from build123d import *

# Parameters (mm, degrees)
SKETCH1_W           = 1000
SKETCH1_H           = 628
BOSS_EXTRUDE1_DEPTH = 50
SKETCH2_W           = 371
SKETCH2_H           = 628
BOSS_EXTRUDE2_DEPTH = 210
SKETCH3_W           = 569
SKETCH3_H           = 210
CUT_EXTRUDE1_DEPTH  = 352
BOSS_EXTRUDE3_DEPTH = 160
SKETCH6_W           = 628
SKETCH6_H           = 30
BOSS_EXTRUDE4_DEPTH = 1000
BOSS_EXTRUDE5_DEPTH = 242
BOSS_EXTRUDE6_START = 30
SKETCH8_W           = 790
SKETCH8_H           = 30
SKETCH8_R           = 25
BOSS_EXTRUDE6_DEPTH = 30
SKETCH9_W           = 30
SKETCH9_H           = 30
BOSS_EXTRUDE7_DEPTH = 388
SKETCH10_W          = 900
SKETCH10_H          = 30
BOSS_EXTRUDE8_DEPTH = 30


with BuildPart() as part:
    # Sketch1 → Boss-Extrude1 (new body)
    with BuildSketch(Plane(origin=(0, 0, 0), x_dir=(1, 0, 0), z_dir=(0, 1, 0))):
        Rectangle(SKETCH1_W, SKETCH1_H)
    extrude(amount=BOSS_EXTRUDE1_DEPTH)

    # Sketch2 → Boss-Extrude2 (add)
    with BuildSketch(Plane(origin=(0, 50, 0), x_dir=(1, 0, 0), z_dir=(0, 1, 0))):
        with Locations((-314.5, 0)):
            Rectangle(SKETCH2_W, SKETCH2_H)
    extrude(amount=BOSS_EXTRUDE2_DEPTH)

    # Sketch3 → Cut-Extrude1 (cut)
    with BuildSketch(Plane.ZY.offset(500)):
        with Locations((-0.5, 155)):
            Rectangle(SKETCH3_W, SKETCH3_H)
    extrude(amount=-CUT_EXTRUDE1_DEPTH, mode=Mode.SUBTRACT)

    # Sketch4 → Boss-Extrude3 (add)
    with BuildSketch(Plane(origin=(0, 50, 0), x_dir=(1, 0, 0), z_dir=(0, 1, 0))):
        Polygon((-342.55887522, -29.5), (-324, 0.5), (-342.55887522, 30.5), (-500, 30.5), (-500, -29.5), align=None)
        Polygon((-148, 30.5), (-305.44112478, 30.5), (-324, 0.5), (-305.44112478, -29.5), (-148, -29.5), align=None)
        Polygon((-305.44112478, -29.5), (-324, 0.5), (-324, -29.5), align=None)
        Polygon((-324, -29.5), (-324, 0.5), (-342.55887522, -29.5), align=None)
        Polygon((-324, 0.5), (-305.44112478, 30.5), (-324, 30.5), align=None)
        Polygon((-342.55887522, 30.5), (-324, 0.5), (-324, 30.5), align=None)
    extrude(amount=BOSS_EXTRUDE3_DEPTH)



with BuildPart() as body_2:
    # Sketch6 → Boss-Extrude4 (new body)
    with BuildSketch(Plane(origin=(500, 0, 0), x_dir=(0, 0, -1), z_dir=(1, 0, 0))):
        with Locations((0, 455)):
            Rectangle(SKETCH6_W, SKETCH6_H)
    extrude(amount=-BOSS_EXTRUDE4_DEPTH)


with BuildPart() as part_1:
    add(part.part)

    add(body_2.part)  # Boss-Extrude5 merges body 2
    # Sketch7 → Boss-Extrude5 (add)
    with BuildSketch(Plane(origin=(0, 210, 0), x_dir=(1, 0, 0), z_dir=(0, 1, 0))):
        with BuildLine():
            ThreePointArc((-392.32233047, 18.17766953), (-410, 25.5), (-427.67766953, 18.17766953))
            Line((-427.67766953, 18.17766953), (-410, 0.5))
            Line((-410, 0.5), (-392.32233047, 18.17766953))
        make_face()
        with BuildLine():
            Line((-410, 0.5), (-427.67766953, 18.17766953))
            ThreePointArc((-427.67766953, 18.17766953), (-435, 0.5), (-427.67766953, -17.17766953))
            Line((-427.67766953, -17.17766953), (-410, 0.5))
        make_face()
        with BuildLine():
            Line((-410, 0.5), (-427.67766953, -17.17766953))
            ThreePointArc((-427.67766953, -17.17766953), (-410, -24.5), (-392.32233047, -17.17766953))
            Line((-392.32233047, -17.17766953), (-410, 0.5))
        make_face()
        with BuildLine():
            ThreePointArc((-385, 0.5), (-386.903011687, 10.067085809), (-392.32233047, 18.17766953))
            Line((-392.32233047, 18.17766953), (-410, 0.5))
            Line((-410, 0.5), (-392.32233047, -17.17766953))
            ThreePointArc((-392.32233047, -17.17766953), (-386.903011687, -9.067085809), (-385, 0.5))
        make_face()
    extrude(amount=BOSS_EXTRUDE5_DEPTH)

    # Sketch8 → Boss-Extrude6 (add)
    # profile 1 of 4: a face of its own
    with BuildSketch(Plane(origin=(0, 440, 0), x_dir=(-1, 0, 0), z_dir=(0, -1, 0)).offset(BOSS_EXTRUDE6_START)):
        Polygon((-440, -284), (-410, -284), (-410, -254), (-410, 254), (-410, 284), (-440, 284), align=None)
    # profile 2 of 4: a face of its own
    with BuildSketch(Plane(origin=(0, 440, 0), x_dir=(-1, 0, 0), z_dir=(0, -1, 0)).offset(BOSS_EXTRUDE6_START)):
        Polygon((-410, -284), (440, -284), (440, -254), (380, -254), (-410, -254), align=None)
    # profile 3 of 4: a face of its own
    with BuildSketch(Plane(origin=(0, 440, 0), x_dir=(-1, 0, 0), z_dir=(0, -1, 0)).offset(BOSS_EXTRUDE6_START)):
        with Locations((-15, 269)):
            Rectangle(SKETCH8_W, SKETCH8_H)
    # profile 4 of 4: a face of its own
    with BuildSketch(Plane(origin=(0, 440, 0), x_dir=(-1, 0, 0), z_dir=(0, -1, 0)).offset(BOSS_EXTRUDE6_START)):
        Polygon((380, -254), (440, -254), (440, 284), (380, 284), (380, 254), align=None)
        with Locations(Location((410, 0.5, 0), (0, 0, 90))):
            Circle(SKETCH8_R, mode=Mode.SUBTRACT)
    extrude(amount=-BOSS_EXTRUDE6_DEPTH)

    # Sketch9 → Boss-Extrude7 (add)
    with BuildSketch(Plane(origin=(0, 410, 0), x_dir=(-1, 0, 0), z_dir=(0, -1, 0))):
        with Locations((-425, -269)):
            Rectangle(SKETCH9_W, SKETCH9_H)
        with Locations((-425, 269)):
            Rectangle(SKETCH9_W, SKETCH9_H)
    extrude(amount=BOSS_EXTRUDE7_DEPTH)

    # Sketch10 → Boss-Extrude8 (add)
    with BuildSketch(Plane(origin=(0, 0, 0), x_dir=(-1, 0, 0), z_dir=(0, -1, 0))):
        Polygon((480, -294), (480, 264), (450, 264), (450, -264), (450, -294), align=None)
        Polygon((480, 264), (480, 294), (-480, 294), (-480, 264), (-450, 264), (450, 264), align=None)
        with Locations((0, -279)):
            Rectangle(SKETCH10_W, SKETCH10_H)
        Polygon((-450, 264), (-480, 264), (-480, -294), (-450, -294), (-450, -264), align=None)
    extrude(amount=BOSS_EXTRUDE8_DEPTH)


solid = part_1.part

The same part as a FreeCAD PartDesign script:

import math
import FreeCAD as App
import Part
import Sketcher
from FreeCAD import Vector
Q = App.Units.Quantity

doc = App.newDocument("Part")
body = doc.addObject("PartDesign::Body", "Body")

sketch1 = body.newObject("Sketcher::SketchObject", "Sketch")
sketch1.AttachmentSupport = (doc.getObject("XZ_Plane"), [""])
sketch1.MapMode = "FlatFace"
sketch1.addGeometry(Part.LineSegment(Vector(-500, -314, 0), Vector(-500, 314, 0)), False)
sketch1.addGeometry(Part.LineSegment(Vector(-500, 314, 0), Vector(500, 314, 0)), False)
sketch1.addGeometry(Part.LineSegment(Vector(500, 314, 0), Vector(500, -314, 0)), False)
sketch1.addGeometry(Part.LineSegment(Vector(500, -314, 0), Vector(-500, -314, 0)), False)
sketch1.addConstraint(Sketcher.Constraint("Coincident", 0, 2, 1, 1))
sketch1.addConstraint(Sketcher.Constraint("Coincident", 1, 2, 2, 1))
sketch1.addConstraint(Sketcher.Constraint("Coincident", 2, 2, 3, 1))
sketch1.addConstraint(Sketcher.Constraint("Coincident", 3, 2, 0, 1))
sketch1.addConstraint(Sketcher.Constraint("Vertical", 0))
sketch1.addConstraint(Sketcher.Constraint("Horizontal", 1))
sketch1.addConstraint(Sketcher.Constraint("Vertical", 2))
sketch1.addConstraint(Sketcher.Constraint("Horizontal", 3))
sketch1.addConstraint(Sketcher.Constraint("Symmetric", 0, 2, 2, 2, -1, 1))
sketch1.addConstraint(Sketcher.Constraint("DistanceX", 1, 1, 1, 2, Q("1000 mm")))
sketch1.addConstraint(Sketcher.Constraint("DistanceY", 0, 1, 0, 2, Q("628 mm")))
pad1 = body.newObject("PartDesign::Pad", "Pad")
pad1.Profile = sketch1
pad1.Length = 50
pad1.Reversed = True

sketch2 = body.newObject("Sketcher::SketchObject", "Sketch001")
sketch2.AttachmentSupport = (doc.getObject("XZ_Plane"), [""])
sketch2.MapMode = "FlatFace"
sketch2.AttachmentOffset = App.Placement(Vector(0, 0, -50), App.Rotation())
sketch2.addGeometry(Part.LineSegment(Vector(-500, -314, 0), Vector(-500, 314, 0)), False)
sketch2.addGeometry(Part.LineSegment(Vector(-500, 314, 0), Vector(-129, 314, 0)), False)
sketch2.addGeometry(Part.LineSegment(Vector(-129, 314, 0), Vector(-129, -314, 0)), False)
sketch2.addGeometry(Part.LineSegment(Vector(-129, -314, 0), Vector(-500, -314, 0)), False)
sketch2.addConstraint(Sketcher.Constraint("Coincident", 0, 2, 1, 1))
sketch2.addConstraint(Sketcher.Constraint("Coincident", 1, 2, 2, 1))
sketch2.addConstraint(Sketcher.Constraint("Coincident", 2, 2, 3, 1))
sketch2.addConstraint(Sketcher.Constraint("Coincident", 3, 2, 0, 1))
sketch2.addConstraint(Sketcher.Constraint("Vertical", 0))
sketch2.addConstraint(Sketcher.Constraint("Horizontal", 1))
sketch2.addConstraint(Sketcher.Constraint("Vertical", 2))
sketch2.addConstraint(Sketcher.Constraint("Horizontal", 3))
sketch2.addConstraint(Sketcher.Constraint("DistanceX", 1, 1, 1, 2, Q("371 mm")))
sketch2.addConstraint(Sketcher.Constraint("DistanceY", 0, 1, 0, 2, Q("628 mm")))
sketch2.addConstraint(Sketcher.Constraint("DistanceX", 0, 2, -1, 1, Q("500 mm")))
sketch2.addConstraint(Sketcher.Constraint("DistanceY", -1, 1, 0, 2, Q("314 mm")))
pad2 = body.newObject("PartDesign::Pad", "Pad001")
pad2.Profile = sketch2
pad2.Length = 210
pad2.Reversed = True

sketch3 = body.newObject("Sketcher::SketchObject", "Sketch002")
sketch3.AttachmentSupport = (doc.getObject("YZ_Plane"), [""])
sketch3.MapMode = "FlatFace"
sketch3.AttachmentOffset = App.Placement(Vector(0, 0, -500), App.Rotation())
sketch3.addGeometry(Part.LineSegment(Vector(260, -285, 0), Vector(50, -285, 0)), False)
sketch3.addGeometry(Part.LineSegment(Vector(50, -285, 0), Vector(50, 284, 0)), False)
sketch3.addGeometry(Part.LineSegment(Vector(50, 284, 0), Vector(260, 284, 0)), False)
sketch3.addGeometry(Part.LineSegment(Vector(260, 284, 0), Vector(260, -285, 0)), False)
sketch3.addConstraint(Sketcher.Constraint("Coincident", 0, 2, 1, 1))
sketch3.addConstraint(Sketcher.Constraint("Coincident", 1, 2, 2, 1))
sketch3.addConstraint(Sketcher.Constraint("Coincident", 2, 2, 3, 1))
sketch3.addConstraint(Sketcher.Constraint("Coincident", 3, 2, 0, 1))
sketch3.addConstraint(Sketcher.Constraint("Horizontal", 0))
sketch3.addConstraint(Sketcher.Constraint("Vertical", 1))
sketch3.addConstraint(Sketcher.Constraint("Horizontal", 2))
sketch3.addConstraint(Sketcher.Constraint("Vertical", 3))
sketch3.addConstraint(Sketcher.Constraint("DistanceX", 0, 2, 0, 1, Q("210 mm")))
sketch3.addConstraint(Sketcher.Constraint("DistanceY", 1, 1, 1, 2, Q("569 mm")))
sketch3.addConstraint(Sketcher.Constraint("DistanceX", -1, 1, 0, 2, Q("50 mm")))
sketch3.addConstraint(Sketcher.Constraint("DistanceY", 0, 2, -1, 1, Q("285 mm")))
pocket1 = body.newObject("PartDesign::Pocket", "Pocket")
pocket1.Profile = sketch3
pocket1.Length = 352
pocket1.Reversed = True

sketch4 = body.newObject("Sketcher::SketchObject", "Sketch003")
sketch4.AttachmentSupport = (doc.getObject("XZ_Plane"), [""])
sketch4.MapMode = "FlatFace"
sketch4.AttachmentOffset = App.Placement(Vector(0, 0, -50), App.Rotation())
sketch4.addGeometry(Part.LineSegment(Vector(-500, -30, 0), Vector(-500, 30, 0)), False)
sketch4.addGeometry(Part.LineSegment(Vector(-500, 30, 0), Vector(-148, 30, 0)), False)
sketch4.addGeometry(Part.LineSegment(Vector(-148, 30, 0), Vector(-148, -30, 0)), False)
sketch4.addGeometry(Part.LineSegment(Vector(-148, -30, 0), Vector(-500, -30, 0)), False)
sketch4.addConstraint(Sketcher.Constraint("Coincident", 0, 2, 1, 1))
sketch4.addConstraint(Sketcher.Constraint("Coincident", 1, 2, 2, 1))
sketch4.addConstraint(Sketcher.Constraint("Coincident", 2, 2, 3, 1))
sketch4.addConstraint(Sketcher.Constraint("Coincident", 3, 2, 0, 1))
sketch4.addConstraint(Sketcher.Constraint("Vertical", 0))
sketch4.addConstraint(Sketcher.Constraint("Horizontal", 1))
sketch4.addConstraint(Sketcher.Constraint("Vertical", 2))
sketch4.addConstraint(Sketcher.Constraint("Horizontal", 3))
sketch4.addConstraint(Sketcher.Constraint("DistanceX", 1, 1, 1, 2, Q("352 mm")))
sketch4.addConstraint(Sketcher.Constraint("DistanceY", 0, 1, 0, 2, Q("60 mm")))
sketch4.addConstraint(Sketcher.Constraint("DistanceX", 0, 2, -1, 1, Q("500 mm")))
sketch4.addConstraint(Sketcher.Constraint("DistanceY", -1, 1, 0, 2, Q("29.5 mm")))
pad3 = body.newObject("PartDesign::Pad", "Pad002")
pad3.Profile = sketch4
pad3.Length = 160
pad3.Reversed = True
body2 = doc.addObject("PartDesign::Body", "Body001")

sketch5 = body2.newObject("Sketcher::SketchObject", "Sketch004")
sketch5.AttachmentSupport = (doc.getObject("YZ_Plane001"), [""])
sketch5.MapMode = "FlatFace"
sketch5.AttachmentOffset = App.Placement(Vector(0, 0, 500), App.Rotation())
sketch5.addGeometry(Part.LineSegment(Vector(470, 314, 0), Vector(440, 314, 0)), False)
sketch5.addGeometry(Part.LineSegment(Vector(440, 314, 0), Vector(440, -314, 0)), False)
sketch5.addGeometry(Part.LineSegment(Vector(440, -314, 0), Vector(470, -314, 0)), False)
sketch5.addGeometry(Part.LineSegment(Vector(470, -314, 0), Vector(470, 314, 0)), False)
sketch5.addConstraint(Sketcher.Constraint("Coincident", 0, 2, 1, 1))
sketch5.addConstraint(Sketcher.Constraint("Coincident", 1, 2, 2, 1))
sketch5.addConstraint(Sketcher.Constraint("Coincident", 2, 2, 3, 1))
sketch5.addConstraint(Sketcher.Constraint("Coincident", 3, 2, 0, 1))
sketch5.addConstraint(Sketcher.Constraint("Horizontal", 0))
sketch5.addConstraint(Sketcher.Constraint("Vertical", 1))
sketch5.addConstraint(Sketcher.Constraint("Horizontal", 2))
sketch5.addConstraint(Sketcher.Constraint("Vertical", 3))
sketch5.addConstraint(Sketcher.Constraint("DistanceX", 0, 2, 0, 1, Q("30 mm")))
sketch5.addConstraint(Sketcher.Constraint("DistanceY", 1, 2, 1, 1, Q("628 mm")))
sketch5.addConstraint(Sketcher.Constraint("DistanceX", -1, 1, 0, 2, Q("440 mm")))
sketch5.addConstraint(Sketcher.Constraint("DistanceY", -1, 1, 0, 2, Q("314 mm")))
pad4 = body2.newObject("PartDesign::Pad", "Pad003")
pad4.Profile = sketch5
pad4.Length = 1000
pad4.Reversed = True
body.AllowCompound = True
doc.recompute()

boolean = body.newObject("PartDesign::Boolean", "Boolean")
boolean.Type = "Fuse"
boolean.addObjects([body2])

sketch6 = body.newObject("Sketcher::SketchObject", "Sketch005")
sketch6.AttachmentSupport = (doc.getObject("XZ_Plane"), [""])
sketch6.MapMode = "FlatFace"
sketch6.AttachmentOffset = App.Placement(Vector(0, 0, -210), App.Rotation())
sketch6.addGeometry(Part.ArcOfCircle(Part.Circle(Vector(-410, 0, 0), Vector(0, 0, 1), 25), math.radians(-135), math.radians(-45)), False)
sketch6.addGeometry(Part.ArcOfCircle(Part.Circle(Vector(-410, 0, 0), Vector(0, 0, 1), 25), math.radians(135), math.radians(225)), False)
sketch6.addGeometry(Part.ArcOfCircle(Part.Circle(Vector(-410, -1, 0), Vector(0, 0, 1), 25), math.radians(45), math.radians(135)), False)
sketch6.addGeometry(Part.ArcOfCircle(Part.Circle(Vector(-410, 0, 0), Vector(0, 0, 1), 25), math.radians(0), math.radians(45)), False)
sketch6.addGeometry(Part.ArcOfCircle(Part.Circle(Vector(-410, 0, 0), Vector(0, 0, 1), 25), math.radians(-45), math.radians(0)), False)
sketch6.addConstraint(Sketcher.Constraint("Tangent", 0, 1, 1, 2))
sketch6.addConstraint(Sketcher.Constraint("Tangent", 1, 1, 2, 2))
sketch6.addConstraint(Sketcher.Constraint("Tangent", 2, 1, 3, 2))
sketch6.addConstraint(Sketcher.Constraint("Tangent", 3, 1, 4, 2))
sketch6.addConstraint(Sketcher.Constraint("Tangent", 4, 1, 0, 2))
sketch6.addConstraint(Sketcher.Constraint("Coincident", 2, 3, 0, 3))
sketch6.addConstraint(Sketcher.Constraint("Horizontal", 1, 1, 2, 1))
sketch6.addConstraint(Sketcher.Constraint("Horizontal", 4, 3, 3, 1))
sketch6.addConstraint(Sketcher.Constraint("Horizontal", 0, 1, 4, 1))
sketch6.addConstraint(Sketcher.Constraint("Vertical", 0, 1, 1, 1))
sketch6.addConstraint(Sketcher.Constraint("Radius", 0, Q("25 mm")))
sketch6.addConstraint(Sketcher.Constraint("DistanceX", 0, 3, -1, 1, Q("410 mm")))
sketch6.addConstraint(Sketcher.Constraint("DistanceY", 0, 3, -1, 1, Q("0.5 mm")))
sketch6.addConstraint(Sketcher.Constraint("DistanceX", 0, 1, -1, 1, Q("427.67767 mm")))
pad5 = body.newObject("PartDesign::Pad", "Pad004")
pad5.Profile = sketch6
pad5.Length = 242
pad5.Reversed = True

sketch7 = body.newObject("Sketcher::SketchObject", "Sketch006")
sketch7.AttachmentSupport = (doc.getObject("XZ_Plane"), [""])
sketch7.MapMode = "FlatFace"
sketch7.AttachmentOffset = App.Placement(Vector(0, 0, -410), App.Rotation())
sketch7.addGeometry(Part.LineSegment(Vector(440, 284, 0), Vector(-440, 284, 0)), False)
sketch7.addGeometry(Part.LineSegment(Vector(-440, 284, 0), Vector(-440, -284, 0)), False)
sketch7.addGeometry(Part.LineSegment(Vector(-440, -284, 0), Vector(440, -284, 0)), False)
sketch7.addGeometry(Part.LineSegment(Vector(440, -284, 0), Vector(440, 284, 0)), False)
sketch7.addGeometry(Part.LineSegment(Vector(410, 254, 0), Vector(410, -254, 0)), False)
sketch7.addGeometry(Part.LineSegment(Vector(410, -254, 0), Vector(-380, -254, 0)), False)
sketch7.addGeometry(Part.LineSegment(Vector(-380, -254, 0), Vector(-380, 254, 0)), False)
sketch7.addGeometry(Part.LineSegment(Vector(-380, 254, 0), Vector(410, 254, 0)), False)
sketch7.addGeometry(Part.Circle(Vector(-410, 0, 0), Vector(0, 0, 1), 25), False)
sketch7.addConstraint(Sketcher.Constraint("Coincident", 0, 2, 1, 1))
sketch7.addConstraint(Sketcher.Constraint("Coincident", 1, 2, 2, 1))
sketch7.addConstraint(Sketcher.Constraint("Coincident", 2, 2, 3, 1))
sketch7.addConstraint(Sketcher.Constraint("Coincident", 3, 2, 0, 1))
sketch7.addConstraint(Sketcher.Constraint("Coincident", 4, 2, 5, 1))
sketch7.addConstraint(Sketcher.Constraint("Coincident", 5, 2, 6, 1))
sketch7.addConstraint(Sketcher.Constraint("Coincident", 6, 2, 7, 1))
sketch7.addConstraint(Sketcher.Constraint("Coincident", 7, 2, 4, 1))
sketch7.addConstraint(Sketcher.Constraint("Horizontal", 0))
sketch7.addConstraint(Sketcher.Constraint("Vertical", 1))
sketch7.addConstraint(Sketcher.Constraint("Horizontal", 2))
sketch7.addConstraint(Sketcher.Constraint("Vertical", 3))
sketch7.addConstraint(Sketcher.Constraint("Vertical", 4))
sketch7.addConstraint(Sketcher.Constraint("Horizontal", 5))
sketch7.addConstraint(Sketcher.Constraint("Vertical", 6))
sketch7.addConstraint(Sketcher.Constraint("Horizontal", 7))
sketch7.addConstraint(Sketcher.Constraint("Symmetric", 0, 2, 2, 2, -1, 1))
sketch7.addConstraint(Sketcher.Constraint("Diameter", 8, Q("50 mm")))
sketch7.addConstraint(Sketcher.Constraint("DistanceX", 0, 2, 0, 1, Q("880 mm")))
sketch7.addConstraint(Sketcher.Constraint("DistanceX", 5, 2, 5, 1, Q("790 mm")))
sketch7.addConstraint(Sketcher.Constraint("DistanceY", 1, 2, 1, 1, Q("568 mm")))
sketch7.addConstraint(Sketcher.Constraint("DistanceY", 4, 2, 4, 1, Q("508 mm")))
sketch7.addConstraint(Sketcher.Constraint("DistanceX", 8, 3, -1, 1, Q("410 mm")))
sketch7.addConstraint(Sketcher.Constraint("DistanceX", -1, 1, 4, 2, Q("410 mm")))
sketch7.addConstraint(Sketcher.Constraint("DistanceY", 4, 2, -1, 1, Q("254 mm")))
sketch7.addConstraint(Sketcher.Constraint("DistanceY", 8, 3, -1, 1, Q("0.5 mm")))
pad6 = body.newObject("PartDesign::Pad", "Pad005")
pad6.Profile = sketch7
pad6.Length = 30
pad6.Reversed = True

sketch8 = body.newObject("Sketcher::SketchObject", "Sketch007")
sketch8.AttachmentSupport = (doc.getObject("XZ_Plane"), [""])
sketch8.MapMode = "FlatFace"
sketch8.AttachmentOffset = App.Placement(Vector(0, 0, -410), App.Rotation())
sketch8.addGeometry(Part.LineSegment(Vector(440, 254, 0), Vector(440, 284, 0)), False)
sketch8.addGeometry(Part.LineSegment(Vector(440, 284, 0), Vector(410, 284, 0)), False)
sketch8.addGeometry(Part.LineSegment(Vector(410, 284, 0), Vector(410, 254, 0)), False)
sketch8.addGeometry(Part.LineSegment(Vector(410, 254, 0), Vector(440, 254, 0)), False)
sketch8.addGeometry(Part.LineSegment(Vector(440, -284, 0), Vector(440, -254, 0)), False)
sketch8.addGeometry(Part.LineSegment(Vector(440, -254, 0), Vector(410, -254, 0)), False)
sketch8.addGeometry(Part.LineSegment(Vector(410, -254, 0), Vector(410, -284, 0)), False)
sketch8.addGeometry(Part.LineSegment(Vector(410, -284, 0), Vector(440, -284, 0)), False)
sketch8.addConstraint(Sketcher.Constraint("Coincident", 0, 2, 1, 1))
sketch8.addConstraint(Sketcher.Constraint("Coincident", 1, 2, 2, 1))
sketch8.addConstraint(Sketcher.Constraint("Coincident", 2, 2, 3, 1))
sketch8.addConstraint(Sketcher.Constraint("Coincident", 3, 2, 0, 1))
sketch8.addConstraint(Sketcher.Constraint("Coincident", 4, 2, 5, 1))
sketch8.addConstraint(Sketcher.Constraint("Coincident", 5, 2, 6, 1))
sketch8.addConstraint(Sketcher.Constraint("Coincident", 6, 2, 7, 1))
sketch8.addConstraint(Sketcher.Constraint("Coincident", 7, 2, 4, 1))
sketch8.addConstraint(Sketcher.Constraint("Vertical", 0))
sketch8.addConstraint(Sketcher.Constraint("Horizontal", 1))
sketch8.addConstraint(Sketcher.Constraint("Vertical", 2))
sketch8.addConstraint(Sketcher.Constraint("Horizontal", 3))
sketch8.addConstraint(Sketcher.Constraint("Vertical", 4))
sketch8.addConstraint(Sketcher.Constraint("Horizontal", 5))
sketch8.addConstraint(Sketcher.Constraint("Vertical", 6))
sketch8.addConstraint(Sketcher.Constraint("Horizontal", 7))
sketch8.addConstraint(Sketcher.Constraint("Symmetric", 3, 2, 4, 2, -1))
sketch8.addConstraint(Sketcher.Constraint("Symmetric", 1, 2, 6, 2, -1))
sketch8.addConstraint(Sketcher.Constraint("Equal", 7, 0))
sketch8.addConstraint(Sketcher.Constraint("DistanceX", 1, 2, 1, 1, Q("30 mm")))
sketch8.addConstraint(Sketcher.Constraint("DistanceX", -1, 1, 0, 2, Q("440 mm")))
sketch8.addConstraint(Sketcher.Constraint("DistanceY", -1, 1, 0, 2, Q("284 mm")))
pad7 = body.newObject("PartDesign::Pad", "Pad006")
pad7.Profile = sketch8
pad7.Length = 388

sketch9 = body.newObject("Sketcher::SketchObject", "Sketch008")
sketch9.AttachmentSupport = (doc.getObject("XZ_Plane"), [""])
sketch9.MapMode = "FlatFace"
sketch9.addGeometry(Part.LineSegment(Vector(-480, 294, 0), Vector(-480, -294, 0)), False)
sketch9.addGeometry(Part.LineSegment(Vector(-480, -294, 0), Vector(480, -294, 0)), False)
sketch9.addGeometry(Part.LineSegment(Vector(480, -294, 0), Vector(480, 294, 0)), False)
sketch9.addGeometry(Part.LineSegment(Vector(480, 294, 0), Vector(-480, 294, 0)), False)
sketch9.addGeometry(Part.LineSegment(Vector(450, -264, 0), Vector(-450, -264, 0)), False)
sketch9.addGeometry(Part.LineSegment(Vector(-450, -264, 0), Vector(-450, 264, 0)), False)
sketch9.addGeometry(Part.LineSegment(Vector(-450, 264, 0), Vector(450, 264, 0)), False)
sketch9.addGeometry(Part.LineSegment(Vector(450, 264, 0), Vector(450, -264, 0)), False)
sketch9.addConstraint(Sketcher.Constraint("Coincident", 0, 2, 1, 1))
sketch9.addConstraint(Sketcher.Constraint("Coincident", 1, 2, 2, 1))
sketch9.addConstraint(Sketcher.Constraint("Coincident", 2, 2, 3, 1))
sketch9.addConstraint(Sketcher.Constraint("Coincident", 3, 2, 0, 1))
sketch9.addConstraint(Sketcher.Constraint("Coincident", 4, 2, 5, 1))
sketch9.addConstraint(Sketcher.Constraint("Coincident", 5, 2, 6, 1))
sketch9.addConstraint(Sketcher.Constraint("Coincident", 6, 2, 7, 1))
sketch9.addConstraint(Sketcher.Constraint("Coincident", 7, 2, 4, 1))
sketch9.addConstraint(Sketcher.Constraint("Vertical", 0))
sketch9.addConstraint(Sketcher.Constraint("Horizontal", 1))
sketch9.addConstraint(Sketcher.Constraint("Vertical", 2))
sketch9.addConstraint(Sketcher.Constraint("Horizontal", 3))
sketch9.addConstraint(Sketcher.Constraint("Horizontal", 4))
sketch9.addConstraint(Sketcher.Constraint("Vertical", 5))
sketch9.addConstraint(Sketcher.Constraint("Horizontal", 6))
sketch9.addConstraint(Sketcher.Constraint("Vertical", 7))
sketch9.addConstraint(Sketcher.Constraint("Symmetric", 0, 2, 2, 2, -1, 1))
sketch9.addConstraint(Sketcher.Constraint("Symmetric", 4, 2, 6, 2, -1, 1))
sketch9.addConstraint(Sketcher.Constraint("DistanceX", 1, 1, 1, 2, Q("960 mm")))
sketch9.addConstraint(Sketcher.Constraint("DistanceX", 4, 2, 4, 1, Q("900 mm")))
sketch9.addConstraint(Sketcher.Constraint("DistanceY", 0, 2, 0, 1, Q("588 mm")))
sketch9.addConstraint(Sketcher.Constraint("DistanceY", 5, 1, 5, 2, Q("528 mm")))
pad8 = body.newObject("PartDesign::Pad", "Pad007")
pad8.Profile = sketch9
pad8.Length = 30

doc.recompute()
